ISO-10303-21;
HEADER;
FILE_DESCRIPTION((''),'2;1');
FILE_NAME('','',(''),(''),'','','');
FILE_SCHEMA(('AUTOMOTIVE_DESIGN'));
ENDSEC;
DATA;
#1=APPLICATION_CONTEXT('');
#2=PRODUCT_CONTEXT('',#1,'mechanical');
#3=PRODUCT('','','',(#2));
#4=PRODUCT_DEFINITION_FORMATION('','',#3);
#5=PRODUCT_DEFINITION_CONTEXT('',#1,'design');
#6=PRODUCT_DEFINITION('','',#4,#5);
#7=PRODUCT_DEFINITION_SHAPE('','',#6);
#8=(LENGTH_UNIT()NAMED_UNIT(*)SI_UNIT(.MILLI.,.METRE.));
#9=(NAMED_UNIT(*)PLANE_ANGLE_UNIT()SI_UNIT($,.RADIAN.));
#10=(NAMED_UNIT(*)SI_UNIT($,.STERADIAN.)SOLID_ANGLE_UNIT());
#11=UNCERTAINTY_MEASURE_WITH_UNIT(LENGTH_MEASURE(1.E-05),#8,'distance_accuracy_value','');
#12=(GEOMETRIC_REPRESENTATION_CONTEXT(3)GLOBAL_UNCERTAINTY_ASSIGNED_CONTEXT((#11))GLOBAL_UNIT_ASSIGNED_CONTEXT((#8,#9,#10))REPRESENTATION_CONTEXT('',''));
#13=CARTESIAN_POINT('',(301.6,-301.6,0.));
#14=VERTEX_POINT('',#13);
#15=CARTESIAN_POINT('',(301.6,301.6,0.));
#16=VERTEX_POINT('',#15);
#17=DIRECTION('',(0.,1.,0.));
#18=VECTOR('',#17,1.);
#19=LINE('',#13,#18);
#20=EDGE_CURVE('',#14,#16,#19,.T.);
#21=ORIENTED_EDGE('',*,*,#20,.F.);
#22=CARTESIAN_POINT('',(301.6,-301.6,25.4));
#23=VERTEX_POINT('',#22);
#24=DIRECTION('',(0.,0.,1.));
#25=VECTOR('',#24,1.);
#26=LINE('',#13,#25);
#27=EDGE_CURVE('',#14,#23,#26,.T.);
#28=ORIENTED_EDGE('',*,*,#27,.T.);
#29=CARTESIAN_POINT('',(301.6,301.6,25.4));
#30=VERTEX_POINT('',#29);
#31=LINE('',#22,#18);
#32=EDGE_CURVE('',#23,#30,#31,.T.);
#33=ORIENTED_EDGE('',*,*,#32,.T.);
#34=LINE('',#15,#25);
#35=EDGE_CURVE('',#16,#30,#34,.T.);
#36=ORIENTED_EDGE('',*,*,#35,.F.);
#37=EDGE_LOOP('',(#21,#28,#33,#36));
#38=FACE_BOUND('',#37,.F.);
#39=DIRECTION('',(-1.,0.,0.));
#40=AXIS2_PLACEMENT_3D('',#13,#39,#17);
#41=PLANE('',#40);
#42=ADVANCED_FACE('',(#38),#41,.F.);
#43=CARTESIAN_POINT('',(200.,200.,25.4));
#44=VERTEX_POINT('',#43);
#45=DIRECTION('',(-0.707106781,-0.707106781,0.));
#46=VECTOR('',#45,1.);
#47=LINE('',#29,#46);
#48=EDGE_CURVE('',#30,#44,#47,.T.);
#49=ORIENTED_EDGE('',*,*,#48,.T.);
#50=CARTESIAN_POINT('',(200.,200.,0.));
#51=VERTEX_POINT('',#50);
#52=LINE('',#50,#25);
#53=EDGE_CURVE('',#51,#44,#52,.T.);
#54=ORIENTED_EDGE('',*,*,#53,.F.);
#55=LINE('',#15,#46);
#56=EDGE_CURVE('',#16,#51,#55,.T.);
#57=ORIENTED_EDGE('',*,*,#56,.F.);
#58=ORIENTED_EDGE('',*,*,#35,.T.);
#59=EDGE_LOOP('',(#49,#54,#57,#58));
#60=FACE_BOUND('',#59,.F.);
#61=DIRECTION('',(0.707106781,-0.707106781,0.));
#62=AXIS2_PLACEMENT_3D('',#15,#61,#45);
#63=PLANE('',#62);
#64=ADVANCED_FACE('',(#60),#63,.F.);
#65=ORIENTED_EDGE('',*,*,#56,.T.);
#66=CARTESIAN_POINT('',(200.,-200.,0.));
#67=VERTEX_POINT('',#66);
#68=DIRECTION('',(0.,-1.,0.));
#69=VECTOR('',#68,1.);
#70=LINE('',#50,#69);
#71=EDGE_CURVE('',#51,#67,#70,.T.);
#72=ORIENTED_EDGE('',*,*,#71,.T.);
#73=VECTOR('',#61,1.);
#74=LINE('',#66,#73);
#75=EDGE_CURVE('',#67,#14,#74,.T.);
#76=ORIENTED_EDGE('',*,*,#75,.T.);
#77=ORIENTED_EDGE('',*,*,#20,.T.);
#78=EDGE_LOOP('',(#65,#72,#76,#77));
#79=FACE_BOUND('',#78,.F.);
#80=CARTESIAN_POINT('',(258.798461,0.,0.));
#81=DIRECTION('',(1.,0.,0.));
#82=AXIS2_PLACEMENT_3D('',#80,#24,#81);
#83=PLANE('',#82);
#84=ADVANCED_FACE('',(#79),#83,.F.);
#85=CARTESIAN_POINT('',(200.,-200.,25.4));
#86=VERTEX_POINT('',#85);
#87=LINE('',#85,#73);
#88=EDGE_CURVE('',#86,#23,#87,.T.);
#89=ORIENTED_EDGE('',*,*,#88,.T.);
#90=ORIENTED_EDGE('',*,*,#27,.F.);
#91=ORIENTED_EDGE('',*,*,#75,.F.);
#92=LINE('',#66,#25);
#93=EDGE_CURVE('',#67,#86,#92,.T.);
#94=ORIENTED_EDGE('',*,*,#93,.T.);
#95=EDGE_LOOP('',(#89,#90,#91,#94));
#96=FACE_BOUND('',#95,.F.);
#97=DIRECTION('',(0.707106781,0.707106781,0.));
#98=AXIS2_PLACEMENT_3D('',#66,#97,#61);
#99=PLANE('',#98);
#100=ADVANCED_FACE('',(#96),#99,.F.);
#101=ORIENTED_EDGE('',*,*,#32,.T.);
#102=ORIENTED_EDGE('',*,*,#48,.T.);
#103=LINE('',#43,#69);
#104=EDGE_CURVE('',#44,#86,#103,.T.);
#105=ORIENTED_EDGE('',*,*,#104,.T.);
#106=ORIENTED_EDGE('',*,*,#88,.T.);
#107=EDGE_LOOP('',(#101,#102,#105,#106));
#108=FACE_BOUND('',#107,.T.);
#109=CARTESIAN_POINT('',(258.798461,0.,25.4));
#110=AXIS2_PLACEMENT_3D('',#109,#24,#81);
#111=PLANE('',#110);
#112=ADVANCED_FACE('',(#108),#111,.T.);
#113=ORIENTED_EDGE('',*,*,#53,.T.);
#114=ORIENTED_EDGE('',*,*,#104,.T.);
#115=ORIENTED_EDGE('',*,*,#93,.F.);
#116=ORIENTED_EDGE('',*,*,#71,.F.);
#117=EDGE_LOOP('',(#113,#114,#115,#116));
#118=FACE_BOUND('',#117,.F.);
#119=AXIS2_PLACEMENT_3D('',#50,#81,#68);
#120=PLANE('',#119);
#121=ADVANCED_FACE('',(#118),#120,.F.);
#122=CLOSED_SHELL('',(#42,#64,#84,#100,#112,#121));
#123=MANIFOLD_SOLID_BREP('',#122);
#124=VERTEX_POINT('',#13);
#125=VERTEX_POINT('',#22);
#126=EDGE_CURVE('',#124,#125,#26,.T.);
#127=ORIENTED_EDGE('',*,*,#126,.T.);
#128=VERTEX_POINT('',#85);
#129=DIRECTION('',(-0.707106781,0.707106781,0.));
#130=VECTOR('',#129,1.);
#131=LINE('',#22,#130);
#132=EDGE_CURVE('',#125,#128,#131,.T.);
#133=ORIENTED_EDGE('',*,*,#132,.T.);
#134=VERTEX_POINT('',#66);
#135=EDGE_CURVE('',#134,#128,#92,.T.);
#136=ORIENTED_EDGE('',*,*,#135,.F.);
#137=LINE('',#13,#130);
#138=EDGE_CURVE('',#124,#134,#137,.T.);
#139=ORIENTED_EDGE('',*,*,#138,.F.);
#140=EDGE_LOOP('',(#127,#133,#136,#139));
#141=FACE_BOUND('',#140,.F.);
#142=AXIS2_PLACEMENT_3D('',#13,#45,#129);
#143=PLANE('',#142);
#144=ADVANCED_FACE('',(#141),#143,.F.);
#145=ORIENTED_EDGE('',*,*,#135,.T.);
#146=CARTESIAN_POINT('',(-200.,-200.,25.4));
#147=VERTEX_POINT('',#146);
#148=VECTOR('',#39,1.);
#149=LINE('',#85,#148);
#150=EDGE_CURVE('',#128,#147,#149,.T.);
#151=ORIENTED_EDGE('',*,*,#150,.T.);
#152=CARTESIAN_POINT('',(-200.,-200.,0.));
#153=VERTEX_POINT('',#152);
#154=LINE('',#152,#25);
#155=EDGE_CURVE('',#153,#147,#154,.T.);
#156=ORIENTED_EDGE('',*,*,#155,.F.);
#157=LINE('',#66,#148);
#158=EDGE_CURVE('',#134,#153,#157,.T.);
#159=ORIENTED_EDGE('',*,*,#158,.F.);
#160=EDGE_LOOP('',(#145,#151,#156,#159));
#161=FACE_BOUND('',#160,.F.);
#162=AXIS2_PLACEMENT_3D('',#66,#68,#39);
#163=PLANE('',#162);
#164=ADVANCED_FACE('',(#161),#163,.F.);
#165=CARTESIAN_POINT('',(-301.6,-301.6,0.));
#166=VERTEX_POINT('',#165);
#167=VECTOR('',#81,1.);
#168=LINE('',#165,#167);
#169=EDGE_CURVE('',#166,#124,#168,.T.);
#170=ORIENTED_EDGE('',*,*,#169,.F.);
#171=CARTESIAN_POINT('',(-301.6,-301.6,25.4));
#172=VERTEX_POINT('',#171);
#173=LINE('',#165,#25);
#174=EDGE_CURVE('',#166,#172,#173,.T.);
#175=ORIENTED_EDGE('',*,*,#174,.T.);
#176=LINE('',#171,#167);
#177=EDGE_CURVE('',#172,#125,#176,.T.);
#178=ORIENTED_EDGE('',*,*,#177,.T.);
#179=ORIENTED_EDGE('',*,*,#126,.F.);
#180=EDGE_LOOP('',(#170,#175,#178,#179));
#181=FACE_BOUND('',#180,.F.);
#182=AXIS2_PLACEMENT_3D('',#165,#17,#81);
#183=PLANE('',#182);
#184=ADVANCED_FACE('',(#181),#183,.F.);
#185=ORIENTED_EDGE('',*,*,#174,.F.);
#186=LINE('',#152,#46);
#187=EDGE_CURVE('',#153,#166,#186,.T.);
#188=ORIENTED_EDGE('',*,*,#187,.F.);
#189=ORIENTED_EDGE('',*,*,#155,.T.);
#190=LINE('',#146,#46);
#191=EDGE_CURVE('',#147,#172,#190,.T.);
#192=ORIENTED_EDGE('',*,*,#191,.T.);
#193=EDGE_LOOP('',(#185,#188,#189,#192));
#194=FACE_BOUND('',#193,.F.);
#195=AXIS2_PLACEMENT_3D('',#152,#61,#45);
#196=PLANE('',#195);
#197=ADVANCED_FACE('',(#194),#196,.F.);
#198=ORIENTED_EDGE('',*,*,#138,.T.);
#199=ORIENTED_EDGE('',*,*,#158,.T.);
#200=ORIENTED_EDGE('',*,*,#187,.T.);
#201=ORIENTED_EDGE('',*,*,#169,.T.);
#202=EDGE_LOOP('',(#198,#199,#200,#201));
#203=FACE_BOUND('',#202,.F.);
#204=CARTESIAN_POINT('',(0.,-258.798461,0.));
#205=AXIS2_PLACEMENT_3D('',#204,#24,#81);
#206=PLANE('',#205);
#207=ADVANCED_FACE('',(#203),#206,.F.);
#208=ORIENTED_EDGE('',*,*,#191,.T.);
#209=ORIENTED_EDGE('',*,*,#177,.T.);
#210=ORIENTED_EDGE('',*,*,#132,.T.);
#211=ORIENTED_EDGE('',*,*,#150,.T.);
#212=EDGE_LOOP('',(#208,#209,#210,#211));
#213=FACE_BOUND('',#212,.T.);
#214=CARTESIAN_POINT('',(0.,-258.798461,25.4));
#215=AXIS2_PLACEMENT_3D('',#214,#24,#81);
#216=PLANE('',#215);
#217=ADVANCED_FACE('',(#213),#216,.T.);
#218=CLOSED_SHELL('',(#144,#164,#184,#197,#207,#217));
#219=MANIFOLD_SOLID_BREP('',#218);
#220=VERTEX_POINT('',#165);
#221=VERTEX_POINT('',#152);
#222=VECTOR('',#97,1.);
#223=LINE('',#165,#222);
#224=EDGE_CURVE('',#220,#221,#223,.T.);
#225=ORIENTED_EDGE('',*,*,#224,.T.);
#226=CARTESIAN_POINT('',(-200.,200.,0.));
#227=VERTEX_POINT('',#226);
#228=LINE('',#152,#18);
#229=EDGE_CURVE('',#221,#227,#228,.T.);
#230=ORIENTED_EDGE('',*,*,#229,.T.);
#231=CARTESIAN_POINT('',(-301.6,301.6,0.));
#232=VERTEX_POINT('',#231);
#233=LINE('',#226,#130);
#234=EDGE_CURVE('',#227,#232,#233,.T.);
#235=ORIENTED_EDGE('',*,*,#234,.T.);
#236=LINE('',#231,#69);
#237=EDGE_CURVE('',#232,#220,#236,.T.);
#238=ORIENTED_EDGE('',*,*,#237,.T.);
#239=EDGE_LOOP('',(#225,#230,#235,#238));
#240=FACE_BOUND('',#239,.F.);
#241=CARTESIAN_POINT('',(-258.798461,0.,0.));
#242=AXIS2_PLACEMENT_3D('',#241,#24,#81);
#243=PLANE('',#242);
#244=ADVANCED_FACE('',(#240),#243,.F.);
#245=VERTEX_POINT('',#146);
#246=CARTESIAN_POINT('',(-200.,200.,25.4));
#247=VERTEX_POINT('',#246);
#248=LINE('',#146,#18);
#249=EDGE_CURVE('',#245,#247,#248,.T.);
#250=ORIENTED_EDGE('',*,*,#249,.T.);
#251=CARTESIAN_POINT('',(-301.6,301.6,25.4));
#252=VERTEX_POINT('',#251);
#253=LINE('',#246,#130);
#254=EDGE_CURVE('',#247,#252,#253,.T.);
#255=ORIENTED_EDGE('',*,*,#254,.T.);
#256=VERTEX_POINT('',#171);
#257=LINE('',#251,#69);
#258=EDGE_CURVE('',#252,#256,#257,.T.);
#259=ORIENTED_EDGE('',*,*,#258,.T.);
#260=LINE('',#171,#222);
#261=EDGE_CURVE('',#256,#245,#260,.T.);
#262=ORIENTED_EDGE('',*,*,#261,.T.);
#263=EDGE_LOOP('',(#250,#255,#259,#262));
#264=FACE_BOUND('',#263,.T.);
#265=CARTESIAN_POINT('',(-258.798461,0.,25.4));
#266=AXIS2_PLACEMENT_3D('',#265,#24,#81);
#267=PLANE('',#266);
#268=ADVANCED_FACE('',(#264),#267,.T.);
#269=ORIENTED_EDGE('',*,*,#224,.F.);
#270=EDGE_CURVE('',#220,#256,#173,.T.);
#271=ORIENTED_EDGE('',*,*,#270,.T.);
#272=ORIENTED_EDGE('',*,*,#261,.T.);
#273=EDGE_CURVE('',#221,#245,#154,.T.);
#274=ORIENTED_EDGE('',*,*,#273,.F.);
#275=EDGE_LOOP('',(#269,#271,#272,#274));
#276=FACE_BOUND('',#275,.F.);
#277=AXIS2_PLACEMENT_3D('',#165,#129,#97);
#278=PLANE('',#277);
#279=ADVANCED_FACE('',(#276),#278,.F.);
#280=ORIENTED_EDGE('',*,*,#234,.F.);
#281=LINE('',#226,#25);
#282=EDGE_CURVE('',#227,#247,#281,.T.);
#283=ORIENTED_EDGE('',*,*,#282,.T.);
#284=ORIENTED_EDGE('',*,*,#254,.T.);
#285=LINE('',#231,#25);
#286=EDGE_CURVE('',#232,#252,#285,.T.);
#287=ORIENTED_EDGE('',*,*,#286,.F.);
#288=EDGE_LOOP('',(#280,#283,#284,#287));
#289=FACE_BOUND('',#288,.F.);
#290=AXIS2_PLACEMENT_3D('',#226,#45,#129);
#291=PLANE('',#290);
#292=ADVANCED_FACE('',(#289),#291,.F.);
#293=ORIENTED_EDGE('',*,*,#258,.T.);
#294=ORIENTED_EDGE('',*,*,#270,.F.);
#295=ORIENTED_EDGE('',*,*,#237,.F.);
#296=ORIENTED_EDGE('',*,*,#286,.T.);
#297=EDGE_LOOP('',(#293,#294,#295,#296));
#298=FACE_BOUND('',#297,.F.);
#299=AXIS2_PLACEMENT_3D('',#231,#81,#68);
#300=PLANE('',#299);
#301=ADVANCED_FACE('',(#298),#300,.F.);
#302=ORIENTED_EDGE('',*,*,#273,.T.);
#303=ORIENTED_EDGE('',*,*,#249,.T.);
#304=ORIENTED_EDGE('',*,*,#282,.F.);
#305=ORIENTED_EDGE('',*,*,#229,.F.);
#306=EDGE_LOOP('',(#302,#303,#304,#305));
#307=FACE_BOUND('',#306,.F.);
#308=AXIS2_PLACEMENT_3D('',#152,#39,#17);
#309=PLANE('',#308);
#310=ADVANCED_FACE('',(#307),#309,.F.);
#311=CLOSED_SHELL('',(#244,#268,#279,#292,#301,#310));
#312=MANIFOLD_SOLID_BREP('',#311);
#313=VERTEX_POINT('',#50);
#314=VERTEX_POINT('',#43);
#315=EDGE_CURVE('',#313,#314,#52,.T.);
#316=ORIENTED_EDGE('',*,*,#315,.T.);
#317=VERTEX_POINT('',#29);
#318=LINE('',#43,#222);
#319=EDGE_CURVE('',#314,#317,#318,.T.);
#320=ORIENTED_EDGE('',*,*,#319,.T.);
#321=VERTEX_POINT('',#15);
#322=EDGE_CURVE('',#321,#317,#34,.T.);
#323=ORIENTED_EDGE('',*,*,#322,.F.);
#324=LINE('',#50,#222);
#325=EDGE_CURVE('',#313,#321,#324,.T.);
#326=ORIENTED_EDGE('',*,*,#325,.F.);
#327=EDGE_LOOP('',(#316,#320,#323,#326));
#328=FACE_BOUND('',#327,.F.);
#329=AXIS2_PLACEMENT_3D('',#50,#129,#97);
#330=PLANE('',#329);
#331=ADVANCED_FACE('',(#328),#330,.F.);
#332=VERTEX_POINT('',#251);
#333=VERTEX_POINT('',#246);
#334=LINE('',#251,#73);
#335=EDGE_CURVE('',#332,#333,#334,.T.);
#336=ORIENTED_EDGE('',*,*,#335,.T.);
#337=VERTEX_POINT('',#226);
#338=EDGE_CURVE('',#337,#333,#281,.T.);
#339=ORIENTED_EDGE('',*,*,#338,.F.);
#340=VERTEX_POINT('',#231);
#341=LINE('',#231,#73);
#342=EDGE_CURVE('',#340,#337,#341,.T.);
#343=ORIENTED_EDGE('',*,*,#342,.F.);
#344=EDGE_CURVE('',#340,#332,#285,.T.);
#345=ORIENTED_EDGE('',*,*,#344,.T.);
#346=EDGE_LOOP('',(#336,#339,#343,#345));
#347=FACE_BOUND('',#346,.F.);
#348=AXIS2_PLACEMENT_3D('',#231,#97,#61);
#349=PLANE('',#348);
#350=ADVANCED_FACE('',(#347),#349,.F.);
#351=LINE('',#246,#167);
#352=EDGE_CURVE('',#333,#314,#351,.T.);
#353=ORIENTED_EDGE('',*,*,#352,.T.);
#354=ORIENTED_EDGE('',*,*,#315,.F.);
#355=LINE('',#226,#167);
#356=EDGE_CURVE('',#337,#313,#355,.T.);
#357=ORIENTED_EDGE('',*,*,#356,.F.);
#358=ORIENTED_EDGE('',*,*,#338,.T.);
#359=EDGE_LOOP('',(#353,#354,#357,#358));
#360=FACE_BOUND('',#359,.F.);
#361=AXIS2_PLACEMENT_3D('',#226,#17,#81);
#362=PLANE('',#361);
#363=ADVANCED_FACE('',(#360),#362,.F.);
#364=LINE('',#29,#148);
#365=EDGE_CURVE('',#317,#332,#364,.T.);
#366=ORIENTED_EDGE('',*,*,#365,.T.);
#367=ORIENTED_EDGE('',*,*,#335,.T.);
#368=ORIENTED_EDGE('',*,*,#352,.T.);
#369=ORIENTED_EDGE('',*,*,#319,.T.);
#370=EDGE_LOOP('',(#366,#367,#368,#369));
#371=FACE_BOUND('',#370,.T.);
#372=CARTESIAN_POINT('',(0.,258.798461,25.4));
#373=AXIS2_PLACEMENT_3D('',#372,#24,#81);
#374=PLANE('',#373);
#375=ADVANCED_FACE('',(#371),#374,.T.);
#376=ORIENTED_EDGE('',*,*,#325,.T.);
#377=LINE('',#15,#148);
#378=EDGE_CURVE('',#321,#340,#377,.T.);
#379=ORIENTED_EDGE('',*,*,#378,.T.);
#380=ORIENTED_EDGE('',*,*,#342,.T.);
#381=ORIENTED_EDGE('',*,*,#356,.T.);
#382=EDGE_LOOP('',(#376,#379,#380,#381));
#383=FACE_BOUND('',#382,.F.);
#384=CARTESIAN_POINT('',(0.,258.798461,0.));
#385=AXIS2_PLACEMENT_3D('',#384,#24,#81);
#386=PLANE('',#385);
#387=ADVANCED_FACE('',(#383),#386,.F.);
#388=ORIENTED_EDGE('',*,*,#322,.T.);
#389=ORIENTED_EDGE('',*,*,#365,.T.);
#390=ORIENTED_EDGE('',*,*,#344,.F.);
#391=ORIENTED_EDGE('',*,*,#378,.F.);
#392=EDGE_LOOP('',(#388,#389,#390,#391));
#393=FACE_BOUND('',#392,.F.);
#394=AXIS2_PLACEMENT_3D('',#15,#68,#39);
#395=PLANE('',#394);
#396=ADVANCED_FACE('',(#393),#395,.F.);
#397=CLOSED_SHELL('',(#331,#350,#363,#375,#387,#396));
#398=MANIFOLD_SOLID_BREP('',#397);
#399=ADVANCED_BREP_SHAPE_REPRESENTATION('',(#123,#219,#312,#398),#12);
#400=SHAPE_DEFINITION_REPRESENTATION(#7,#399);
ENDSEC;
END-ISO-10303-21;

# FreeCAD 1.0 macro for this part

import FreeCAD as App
import Part
import Sketcher
Q = App.Units.Quantity


def add_polygon(sketch, points):
    """Adds a closed chain of lines whose ends are joined by coincident constraints."""
    first, n = sketch.GeometryCount, len(points)
    for a, b in zip(points, points[1:] + points[:1]):
        sketch.addGeometry(Part.LineSegment(App.Vector(*a, 0), App.Vector(*b, 0)), False)
    for i in range(n):
        sketch.addConstraint(Sketcher.Constraint("Coincident", first + i, 2, first + (i + 1) % n, 1))

doc = App.newDocument("Part")
body = doc.addObject("PartDesign::Body", "Body")

sketch1 = body.newObject("Sketcher::SketchObject", "Sketch")
sketch1.AttachmentSupport = (doc.getObject("XY_Plane"), [""])
sketch1.MapMode = "FlatFace"
add_polygon(sketch1, [(-200, 200), (200, 200), (302, 302), (-302, 302)])
sketch1.addConstraint([
    Sketcher.Constraint("Horizontal", 0),
    Sketcher.Constraint("Horizontal", 2),
    Sketcher.Constraint("Perpendicular", 1, 3),
    Sketcher.Constraint("Equal", 1, 3),
    Sketcher.Constraint("DistanceX", 0, 1, 0, 2, Q("400 mm")),
    Sketcher.Constraint("DistanceX", 2, 2, 2, 1, Q("603.2 mm")),
    Sketcher.Constraint("DistanceX", -1, 1, 0, 2, Q("200 mm")),
    Sketcher.Constraint("DistanceY", -1, 1, 0, 2, Q("200 mm")),
])
pad1 = body.newObject("PartDesign::Pad", "Pad")
pad1.Profile = sketch1
pad1.Length = 25.4
body2 = doc.addObject("PartDesign::Body", "Body001")

sketch2 = body2.newObject("Sketcher::SketchObject", "Sketch001")
sketch2.AttachmentSupport = (doc.getObject("XY_Plane001"), [""])
sketch2.MapMode = "FlatFace"
add_polygon(sketch2, [(-200, -200), (-200, 200), (-302, 302), (-302, -302)])
sketch2.addConstraint([
    Sketcher.Constraint("Vertical", 0),
    Sketcher.Constraint("Vertical", 2),
    Sketcher.Constraint("Perpendicular", 1, 3),
    Sketcher.Constraint("Equal", 1, 3),
    Sketcher.Constraint("DistanceY", 0, 1, 0, 2, Q("400 mm")),
    Sketcher.Constraint("DistanceY", 2, 2, 2, 1, Q("603.2 mm")),
    Sketcher.Constraint("DistanceX", 0, 2, -1, 1, Q("200 mm")),
    Sketcher.Constraint("DistanceY", -1, 1, 0, 2, Q("200 mm")),
])
pad2 = body2.newObject("PartDesign::Pad", "Pad001")
pad2.Profile = sketch2
pad2.Length = 25.4
body3 = doc.addObject("PartDesign::Body", "Body002")

sketch3 = body3.newObject("Sketcher::SketchObject", "Sketch002")
sketch3.AttachmentSupport = (doc.getObject("XY_Plane002"), [""])
sketch3.MapMode = "FlatFace"
add_polygon(sketch3, [(302, -302), (200, -200), (-200, -200), (-302, -302)])
sketch3.addConstraint([
    Sketcher.Constraint("Horizontal", 1),
    Sketcher.Constraint("Horizontal", 3),
    Sketcher.Constraint("Perpendicular", 0, 2),
    Sketcher.Constraint("Equal", 0, 2),
    Sketcher.Constraint("DistanceX", 1, 2, 1, 1, Q("400 mm")),
    Sketcher.Constraint("DistanceX", 3, 1, 3, 2, Q("603.2 mm")),
    Sketcher.Constraint("DistanceX", -1, 1, 0, 2, Q("200 mm")),
    Sketcher.Constraint("DistanceY", 0, 2, -1, 1, Q("200 mm")),
])
pad3 = body3.newObject("PartDesign::Pad", "Pad002")
pad3.Profile = sketch3
pad3.Length = 25.4
body4 = doc.addObject("PartDesign::Body", "Body003")

sketch4 = body4.newObject("Sketcher::SketchObject", "Sketch003")
sketch4.AttachmentSupport = (doc.getObject("XY_Plane003"), [""])
sketch4.MapMode = "FlatFace"
add_polygon(sketch4, [(302, 302), (200, 200), (200, -200), (302, -302)])
sketch4.addConstraint([
    Sketcher.Constraint("Vertical", 1),
    Sketcher.Constraint("Vertical", 3),
    Sketcher.Constraint("Perpendicular", 0, 2),
    Sketcher.Constraint("Equal", 0, 2),
    Sketcher.Constraint("DistanceY", 1, 2, 1, 1, Q("400 mm")),
    Sketcher.Constraint("DistanceY", 3, 1, 3, 2, Q("603.2 mm")),
    Sketcher.Constraint("DistanceX", -1, 1, 0, 2, Q("200 mm")),
    Sketcher.Constraint("DistanceY", -1, 1, 0, 2, Q("200 mm")),
])
pad4 = body4.newObject("PartDesign::Pad", "Pad003")
pad4.Profile = sketch4
pad4.Length = 25.4

doc.recompute()
